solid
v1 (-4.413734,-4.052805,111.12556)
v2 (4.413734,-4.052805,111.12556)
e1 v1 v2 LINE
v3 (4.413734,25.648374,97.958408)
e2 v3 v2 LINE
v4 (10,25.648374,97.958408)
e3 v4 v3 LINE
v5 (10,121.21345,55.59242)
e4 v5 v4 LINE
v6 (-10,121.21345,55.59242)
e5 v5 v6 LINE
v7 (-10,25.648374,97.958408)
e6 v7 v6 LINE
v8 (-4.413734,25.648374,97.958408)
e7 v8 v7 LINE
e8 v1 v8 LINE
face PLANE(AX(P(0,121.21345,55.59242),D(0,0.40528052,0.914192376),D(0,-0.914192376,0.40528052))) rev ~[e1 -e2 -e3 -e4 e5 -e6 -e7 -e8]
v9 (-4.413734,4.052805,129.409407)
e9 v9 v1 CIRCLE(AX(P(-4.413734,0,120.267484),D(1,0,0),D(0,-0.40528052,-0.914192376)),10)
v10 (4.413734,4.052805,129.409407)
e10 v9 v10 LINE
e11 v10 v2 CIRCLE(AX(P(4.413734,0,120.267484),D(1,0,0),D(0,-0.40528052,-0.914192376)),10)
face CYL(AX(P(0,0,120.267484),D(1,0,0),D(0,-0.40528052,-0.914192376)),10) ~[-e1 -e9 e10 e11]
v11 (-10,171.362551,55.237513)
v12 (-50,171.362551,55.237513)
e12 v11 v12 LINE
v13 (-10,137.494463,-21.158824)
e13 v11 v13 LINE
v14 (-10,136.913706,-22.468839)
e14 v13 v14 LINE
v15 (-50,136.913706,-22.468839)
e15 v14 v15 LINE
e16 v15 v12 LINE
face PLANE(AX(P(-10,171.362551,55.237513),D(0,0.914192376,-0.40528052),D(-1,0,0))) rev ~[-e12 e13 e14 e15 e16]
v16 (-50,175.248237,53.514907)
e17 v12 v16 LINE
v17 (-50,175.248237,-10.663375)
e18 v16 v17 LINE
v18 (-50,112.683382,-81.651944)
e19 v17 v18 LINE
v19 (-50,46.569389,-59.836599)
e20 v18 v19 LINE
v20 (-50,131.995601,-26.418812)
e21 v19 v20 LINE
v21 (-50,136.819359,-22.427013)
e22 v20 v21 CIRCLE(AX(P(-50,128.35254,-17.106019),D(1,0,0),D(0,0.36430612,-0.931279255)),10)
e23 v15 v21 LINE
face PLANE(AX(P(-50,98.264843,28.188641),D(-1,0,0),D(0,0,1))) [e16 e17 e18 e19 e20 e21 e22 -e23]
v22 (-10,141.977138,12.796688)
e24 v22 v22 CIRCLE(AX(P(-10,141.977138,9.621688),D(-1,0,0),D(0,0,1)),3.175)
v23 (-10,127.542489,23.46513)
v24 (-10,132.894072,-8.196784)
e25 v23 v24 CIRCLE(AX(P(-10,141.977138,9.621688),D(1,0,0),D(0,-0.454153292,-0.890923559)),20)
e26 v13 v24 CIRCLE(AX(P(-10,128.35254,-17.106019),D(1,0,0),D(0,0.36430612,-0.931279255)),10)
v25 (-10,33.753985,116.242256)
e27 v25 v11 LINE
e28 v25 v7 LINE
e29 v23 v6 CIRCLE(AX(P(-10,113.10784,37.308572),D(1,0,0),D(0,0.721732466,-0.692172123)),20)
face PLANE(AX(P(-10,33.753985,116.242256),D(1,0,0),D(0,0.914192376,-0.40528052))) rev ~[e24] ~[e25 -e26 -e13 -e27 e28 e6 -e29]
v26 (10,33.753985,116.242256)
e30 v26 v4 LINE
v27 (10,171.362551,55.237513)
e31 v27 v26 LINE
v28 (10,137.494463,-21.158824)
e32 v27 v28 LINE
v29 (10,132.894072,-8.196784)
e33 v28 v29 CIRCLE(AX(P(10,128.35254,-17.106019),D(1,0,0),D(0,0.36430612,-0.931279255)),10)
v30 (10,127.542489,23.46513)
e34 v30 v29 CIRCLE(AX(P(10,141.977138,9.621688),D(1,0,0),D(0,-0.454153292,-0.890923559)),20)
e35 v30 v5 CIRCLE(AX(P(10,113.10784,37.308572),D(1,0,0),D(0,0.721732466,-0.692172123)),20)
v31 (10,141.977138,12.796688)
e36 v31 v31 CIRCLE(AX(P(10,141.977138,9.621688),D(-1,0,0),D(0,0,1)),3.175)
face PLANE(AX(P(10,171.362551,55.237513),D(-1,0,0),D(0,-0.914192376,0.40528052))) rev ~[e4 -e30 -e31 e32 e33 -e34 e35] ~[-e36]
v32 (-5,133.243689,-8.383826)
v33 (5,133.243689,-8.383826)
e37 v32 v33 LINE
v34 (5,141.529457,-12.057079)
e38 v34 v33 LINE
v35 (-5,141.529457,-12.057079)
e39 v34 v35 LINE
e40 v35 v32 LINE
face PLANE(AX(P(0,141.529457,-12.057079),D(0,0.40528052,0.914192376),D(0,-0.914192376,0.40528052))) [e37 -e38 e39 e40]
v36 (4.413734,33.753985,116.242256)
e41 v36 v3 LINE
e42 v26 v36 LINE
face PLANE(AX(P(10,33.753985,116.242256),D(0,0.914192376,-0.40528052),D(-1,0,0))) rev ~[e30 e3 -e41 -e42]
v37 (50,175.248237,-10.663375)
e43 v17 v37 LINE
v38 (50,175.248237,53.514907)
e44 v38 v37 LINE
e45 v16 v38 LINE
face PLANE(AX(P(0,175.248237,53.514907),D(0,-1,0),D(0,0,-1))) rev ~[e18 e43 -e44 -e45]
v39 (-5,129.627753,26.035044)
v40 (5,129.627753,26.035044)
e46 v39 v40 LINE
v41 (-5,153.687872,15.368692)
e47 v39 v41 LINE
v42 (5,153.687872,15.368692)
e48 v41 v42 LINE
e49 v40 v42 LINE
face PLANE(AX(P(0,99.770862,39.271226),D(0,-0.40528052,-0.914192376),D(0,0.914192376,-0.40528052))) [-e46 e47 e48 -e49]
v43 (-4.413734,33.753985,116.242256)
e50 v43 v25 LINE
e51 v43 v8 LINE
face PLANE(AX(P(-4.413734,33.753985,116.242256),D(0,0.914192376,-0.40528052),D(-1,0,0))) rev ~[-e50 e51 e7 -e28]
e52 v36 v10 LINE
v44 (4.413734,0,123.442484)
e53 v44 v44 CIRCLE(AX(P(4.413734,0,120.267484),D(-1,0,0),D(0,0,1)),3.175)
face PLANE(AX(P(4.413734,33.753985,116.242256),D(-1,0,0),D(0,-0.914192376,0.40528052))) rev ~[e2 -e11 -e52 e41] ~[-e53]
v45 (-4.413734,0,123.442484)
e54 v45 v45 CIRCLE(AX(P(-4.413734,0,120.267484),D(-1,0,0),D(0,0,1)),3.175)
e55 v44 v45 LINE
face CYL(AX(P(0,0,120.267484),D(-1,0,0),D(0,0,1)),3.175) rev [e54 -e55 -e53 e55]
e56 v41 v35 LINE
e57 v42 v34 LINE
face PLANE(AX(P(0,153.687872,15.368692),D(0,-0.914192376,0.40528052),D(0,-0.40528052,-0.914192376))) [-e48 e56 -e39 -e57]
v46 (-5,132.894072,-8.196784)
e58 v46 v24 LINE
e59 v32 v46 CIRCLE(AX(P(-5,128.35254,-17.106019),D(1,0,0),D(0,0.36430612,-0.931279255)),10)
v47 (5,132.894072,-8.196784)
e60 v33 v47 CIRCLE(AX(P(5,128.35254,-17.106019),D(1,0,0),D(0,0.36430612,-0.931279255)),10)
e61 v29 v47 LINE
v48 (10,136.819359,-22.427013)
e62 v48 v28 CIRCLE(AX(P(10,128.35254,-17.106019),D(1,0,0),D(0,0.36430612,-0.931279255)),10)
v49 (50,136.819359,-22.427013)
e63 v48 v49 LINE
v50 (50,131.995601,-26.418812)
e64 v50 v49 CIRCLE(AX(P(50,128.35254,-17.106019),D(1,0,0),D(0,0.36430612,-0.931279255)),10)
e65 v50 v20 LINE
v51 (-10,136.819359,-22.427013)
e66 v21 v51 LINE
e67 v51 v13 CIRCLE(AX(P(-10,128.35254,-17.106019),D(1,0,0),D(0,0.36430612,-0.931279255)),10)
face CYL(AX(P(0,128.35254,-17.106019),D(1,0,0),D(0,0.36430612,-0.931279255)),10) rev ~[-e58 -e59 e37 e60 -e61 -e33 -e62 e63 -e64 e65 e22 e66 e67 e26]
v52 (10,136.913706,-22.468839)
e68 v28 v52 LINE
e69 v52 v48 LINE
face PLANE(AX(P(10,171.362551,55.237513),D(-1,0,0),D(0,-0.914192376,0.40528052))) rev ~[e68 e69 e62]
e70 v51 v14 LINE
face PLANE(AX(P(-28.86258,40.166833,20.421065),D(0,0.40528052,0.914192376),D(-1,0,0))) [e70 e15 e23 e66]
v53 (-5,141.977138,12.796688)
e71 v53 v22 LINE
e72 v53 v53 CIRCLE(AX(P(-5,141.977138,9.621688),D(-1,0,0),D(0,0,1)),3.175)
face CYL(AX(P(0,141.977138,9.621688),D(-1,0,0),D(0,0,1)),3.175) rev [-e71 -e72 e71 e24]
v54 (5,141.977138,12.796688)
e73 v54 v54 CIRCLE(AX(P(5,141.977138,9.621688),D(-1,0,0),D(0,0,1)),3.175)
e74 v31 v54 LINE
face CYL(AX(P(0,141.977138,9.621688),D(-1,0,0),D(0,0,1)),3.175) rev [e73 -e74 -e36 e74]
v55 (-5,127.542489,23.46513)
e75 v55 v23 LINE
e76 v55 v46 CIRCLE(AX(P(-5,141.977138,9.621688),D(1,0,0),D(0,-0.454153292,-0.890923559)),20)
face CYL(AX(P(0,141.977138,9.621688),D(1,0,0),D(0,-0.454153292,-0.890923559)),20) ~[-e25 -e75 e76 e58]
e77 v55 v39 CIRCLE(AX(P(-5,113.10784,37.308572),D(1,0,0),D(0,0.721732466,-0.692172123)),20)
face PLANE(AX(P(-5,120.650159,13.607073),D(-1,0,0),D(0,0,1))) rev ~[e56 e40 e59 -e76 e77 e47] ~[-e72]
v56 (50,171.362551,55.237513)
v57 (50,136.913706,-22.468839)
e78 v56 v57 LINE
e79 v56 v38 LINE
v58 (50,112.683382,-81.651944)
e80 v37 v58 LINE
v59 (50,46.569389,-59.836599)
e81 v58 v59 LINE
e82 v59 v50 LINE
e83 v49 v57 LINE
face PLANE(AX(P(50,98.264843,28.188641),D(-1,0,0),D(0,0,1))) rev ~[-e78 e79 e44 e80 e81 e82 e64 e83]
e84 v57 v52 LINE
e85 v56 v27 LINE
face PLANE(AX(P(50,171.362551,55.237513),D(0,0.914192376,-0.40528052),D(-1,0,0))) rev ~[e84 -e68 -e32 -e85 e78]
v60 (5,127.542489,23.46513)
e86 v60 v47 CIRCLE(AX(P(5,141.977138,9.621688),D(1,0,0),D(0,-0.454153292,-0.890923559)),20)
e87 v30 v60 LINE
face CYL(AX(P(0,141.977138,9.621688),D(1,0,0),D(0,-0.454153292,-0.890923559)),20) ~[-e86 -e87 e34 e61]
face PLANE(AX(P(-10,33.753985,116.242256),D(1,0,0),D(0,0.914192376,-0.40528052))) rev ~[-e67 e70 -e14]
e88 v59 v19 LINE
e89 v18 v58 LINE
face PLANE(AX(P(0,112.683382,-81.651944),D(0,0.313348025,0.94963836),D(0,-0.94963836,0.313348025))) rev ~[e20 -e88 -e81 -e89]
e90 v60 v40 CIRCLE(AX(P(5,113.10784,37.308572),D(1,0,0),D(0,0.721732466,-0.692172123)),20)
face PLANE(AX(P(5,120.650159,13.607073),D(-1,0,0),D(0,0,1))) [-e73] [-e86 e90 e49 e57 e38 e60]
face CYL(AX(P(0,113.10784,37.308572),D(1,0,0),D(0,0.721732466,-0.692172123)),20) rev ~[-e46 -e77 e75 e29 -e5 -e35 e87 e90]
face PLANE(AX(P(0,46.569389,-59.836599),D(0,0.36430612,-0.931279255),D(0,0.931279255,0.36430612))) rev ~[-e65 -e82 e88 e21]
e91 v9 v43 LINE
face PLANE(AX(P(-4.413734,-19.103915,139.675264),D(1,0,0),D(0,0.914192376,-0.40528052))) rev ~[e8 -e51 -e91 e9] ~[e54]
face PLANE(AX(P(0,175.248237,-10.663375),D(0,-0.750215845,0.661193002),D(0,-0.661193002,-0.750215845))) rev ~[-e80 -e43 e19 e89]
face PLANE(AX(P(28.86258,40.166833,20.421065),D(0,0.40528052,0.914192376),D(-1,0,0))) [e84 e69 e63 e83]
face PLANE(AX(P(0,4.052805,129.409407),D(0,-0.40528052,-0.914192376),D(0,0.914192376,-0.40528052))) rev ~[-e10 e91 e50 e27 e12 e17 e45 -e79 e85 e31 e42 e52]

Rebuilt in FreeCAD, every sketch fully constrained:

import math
import FreeCAD as App
import Part
import Sketcher
from FreeCAD import Vector


def add_polygon(sketch, points):
    """Adds a closed chain of lines whose ends are joined by coincident constraints."""
    first, n = sketch.GeometryCount, len(points)
    for a, b in zip(points, points[1:] + points[:1]):
        sketch.addGeometry(Part.LineSegment(App.Vector(*a, 0), App.Vector(*b, 0)), False)
    for i in range(n):
        sketch.addConstraint(Sketcher.Constraint("Coincident", first + i, 2, first + (i + 1) % n, 1))

doc = App.newDocument("Part")
body = doc.addObject("PartDesign::Body", "Body")

sketch1 = body.newObject("Sketcher::SketchObject", "Sketch")
sketch1.AttachmentSupport = (doc.getObject("YZ_Plane"), [""])
sketch1.MapMode = "FlatFace"
sketch1.addGeometry([
    Part.LineSegment(Vector(46.569389, -59.836599, 0), Vector(112.683382, -81.651944, 0)),
    Part.LineSegment(Vector(112.683382, -81.651944, 0), Vector(175.248237, -10.663375, 0)),
    Part.LineSegment(Vector(175.248237, -10.663375, 0), Vector(175.248237, 53.514907, 0)),
    Part.LineSegment(Vector(175.248237, 53.514907, 0), Vector(4.052805, 129.409407, 0)),
    Part.ArcOfCircle(Part.Circle(Vector(0, 120.267484, 0), Vector(0, 0, 1), 10), math.radians(66.091293), math.radians(246.091293)),
    Part.LineSegment(Vector(-4.052805, 111.12556, 0), Vector(121.21345, 55.59242, 0)),
    Part.ArcOfCircle(Part.Circle(Vector(113.10784, 37.308572, 0), Vector(0, 0, 1), 20), math.radians(-43.802298), math.radians(66.091293)),
    Part.ArcOfCircle(Part.Circle(Vector(141.977138, 9.621688, 0), Vector(0, 0, 1), 20), math.radians(136.197702), math.radians(242.989531)),
    Part.ArcOfCircle(Part.Circle(Vector(128.35254, -17.106019, 0), Vector(0, 0, 1), 10), math.radians(-68.635114), math.radians(62.989531)),
    Part.LineSegment(Vector(131.995601, -26.418812, 0), Vector(46.569389, -59.836599, 0)),
    Part.Circle(Vector(0, 120.267484, 0), Vector(0, 0, 1), 3.175),
    Part.Circle(Vector(141.977138, 9.621688, 0), Vector(0, 0, 1), 3.175),
], False)
sketch1.addConstraint([
    Sketcher.Constraint("Coincident", 0, 2, 1, 1),
    Sketcher.Constraint("Coincident", 1, 2, 2, 1),
    Sketcher.Constraint("Coincident", 2, 2, 3, 1),
    Sketcher.Constraint("Tangent", 3, 2, 4, 1),
    Sketcher.Constraint("Tangent", 4, 2, 5, 1),
    Sketcher.Constraint("Tangent", 5, 2, 6, 2),
    Sketcher.Constraint("Tangent", 6, 1, 7, 1),
    Sketcher.Constraint("Tangent", 7, 2, 8, 2),
    Sketcher.Constraint("Tangent", 8, 1, 9, 1),
    Sketcher.Constraint("Coincident", 9, 2, 0, 1),
    Sketcher.Constraint("Vertical", 2),
    Sketcher.Constraint("Coincident", 10, 3, 4, 3),
    Sketcher.Constraint("Coincident", 11, 3, 7, 3),
    Sketcher.Constraint("Equal", 6, 7),
    Sketcher.Constraint("Equal", 4, 8),
    Sketcher.Constraint("Equal", 10, 11),
    Sketcher.Constraint("PointOnObject", 4, 3, -2),
    Sketcher.Constraint("Parallel", 3, 5),
    Sketcher.Constraint("Radius", 4, 10.0),
    Sketcher.Constraint("Radius", 6, 20.0),
    Sketcher.Constraint("Diameter", 10, 6.35),
    Sketcher.Constraint("DistanceX", -1, 1, 8, 1, 131.995601),
    Sketcher.Constraint("DistanceY", 9, 2, -1, 1, 59.836599),
    Sketcher.Constraint("DistanceX", 6, 3, 7, 3, 28.869299),
    Sketcher.Constraint("DistanceX", 8, 3, 7, 3, 13.624599),
    Sketcher.Constraint("DistanceX", 11, 3, 1, 2, 33.271098),
    Sketcher.Constraint("DistanceY", 8, 1, 7, 3, 36.040499),
    Sketcher.Constraint("DistanceX", 9, 2, 6, 1, 80.9731),
    Sketcher.Constraint("Distance", 0, 69.620179),
    Sketcher.Constraint("Distance", 3, 187.264121),
    Sketcher.Constraint("DistanceY", 2, 1, 2, 2, 64.178282),
    Sketcher.Constraint("DistanceY", 0, 2, 7, 3, 91.273632),
])
pad1 = body.newObject("PartDesign::Pad", "Pad")
pad1.Profile = sketch1
pad1.Length = 100
pad1.Midplane = True

sketch2 = body.newObject("Sketcher::SketchObject", "Sketch001")
sketch2.Placement = App.Placement(Vector(0, -60.961451, 158.231581), App.Rotation(Vector(1, 0, 0), Vector(0, -0.914192376, 0.40528052), Vector(0, -0.40528052, -0.914192376), "ZXY"))
add_polygon(sketch2, [(10, -254.13032), (50, -254.13032), (50, -45.786353), (4.413734, -45.786353), (4.413734, -103.605584), (10, -103.605584)])
add_polygon(sketch2, [(-50, -45.786353), (-50, -254.13032), (-10, -254.13032), (-10, -103.605584), (-4.413734, -103.605584), (-4.413734, -45.786353)])
sketch2.addConstraint([
    Sketcher.Constraint("Horizontal", 0),
    Sketcher.Constraint("Vertical", 1),
    Sketcher.Constraint("Horizontal", 2),
    Sketcher.Constraint("Vertical", 3),
    Sketcher.Constraint("Horizontal", 4),
    Sketcher.Constraint("Vertical", 5),
    Sketcher.Constraint("Vertical", 6),
    Sketcher.Constraint("Horizontal", 7),
    Sketcher.Constraint("Vertical", 8),
    Sketcher.Constraint("Horizontal", 9),
    Sketcher.Constraint("Vertical", 10),
    Sketcher.Constraint("Horizontal", 11),
    Sketcher.Constraint("Symmetric", 0, 2, 6, 2, -2),
    Sketcher.Constraint("Symmetric", 4, 2, 8, 2, -2),
    Sketcher.Constraint("Symmetric", 2, 2, 10, 2, -2),
    Sketcher.Constraint("DistanceX", 0, 1, 0, 2, 40.0),
    Sketcher.Constraint("DistanceX", -1, 1, 0, 2, 50.0),
    Sketcher.Constraint("DistanceY", 3, 2, 3, 1, 57.819231),
    Sketcher.Constraint("DistanceX", 2, 2, 2, 1, 45.586266),
    Sketcher.Constraint("DistanceY", 1, 1, 1, 2, 208.343967),
    Sketcher.Constraint("DistanceY", 0, 2, -1, 1, 254.13032),
])
pocket1 = body.newObject("PartDesign::Pocket", "Pocket")
pocket1.Profile = sketch2
pocket1.Length = 85
pocket1.Reversed = True

sketch3 = body.newObject("Sketcher::SketchObject", "Sketch002")
sketch3.AttachmentSupport = (doc.getObject("YZ_Plane"), [""])
sketch3.MapMode = "FlatFace"
add_polygon(sketch3, [(141.529457, -12.057079), (153.687872, 15.368692), (99.770862, 39.271226), (87.612446, 11.845455)])
sketch3.addConstraint([
    Sketcher.Constraint("Perpendicular", 0, 1),
    Sketcher.Constraint("Perpendicular", 1, 2),
    Sketcher.Constraint("Perpendicular", 2, 3),
    Sketcher.Constraint("Distance", 0, 30.0),
    Sketcher.Constraint("Distance", 1, 58.977751),
    Sketcher.Constraint("DistanceX", -1, 1, 1, 2, 99.770862),
    Sketcher.Constraint("DistanceY", 3, 2, -1, 1, 12.057079),
    Sketcher.Constraint("DistanceX", 1, 2, 0, 2, 53.917011),
])
pocket2 = body.newObject("PartDesign::Pocket", "Pocket001")
pocket2.Profile = sketch3
pocket2.Length = 10
pocket2.Midplane = True

doc.recompute()
